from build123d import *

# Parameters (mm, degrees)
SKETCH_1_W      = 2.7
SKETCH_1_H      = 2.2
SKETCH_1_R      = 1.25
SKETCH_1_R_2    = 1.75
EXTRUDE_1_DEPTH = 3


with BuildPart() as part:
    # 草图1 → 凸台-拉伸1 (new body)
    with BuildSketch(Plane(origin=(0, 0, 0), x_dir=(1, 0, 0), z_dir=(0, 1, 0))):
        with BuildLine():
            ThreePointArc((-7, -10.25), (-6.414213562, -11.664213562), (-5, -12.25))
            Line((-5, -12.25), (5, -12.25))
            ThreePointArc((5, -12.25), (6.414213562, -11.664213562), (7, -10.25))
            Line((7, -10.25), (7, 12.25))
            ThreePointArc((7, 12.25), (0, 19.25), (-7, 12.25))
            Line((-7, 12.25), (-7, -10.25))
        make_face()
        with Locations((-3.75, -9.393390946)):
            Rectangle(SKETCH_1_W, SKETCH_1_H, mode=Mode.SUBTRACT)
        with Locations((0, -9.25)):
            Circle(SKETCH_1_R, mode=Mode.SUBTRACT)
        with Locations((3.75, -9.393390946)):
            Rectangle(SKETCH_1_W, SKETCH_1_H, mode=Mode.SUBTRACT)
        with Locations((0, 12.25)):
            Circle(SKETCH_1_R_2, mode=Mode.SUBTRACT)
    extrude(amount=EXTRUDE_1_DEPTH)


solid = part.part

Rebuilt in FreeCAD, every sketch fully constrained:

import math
import FreeCAD as App
import Part
import Sketcher
from FreeCAD import Vector


def add_polygon(sketch, points):
    """Adds a closed chain of lines whose ends are joined by coincident constraints."""
    first, n = sketch.GeometryCount, len(points)
    for a, b in zip(points, points[1:] + points[:1]):
        sketch.addGeometry(Part.LineSegment(App.Vector(*a, 0), App.Vector(*b, 0)), False)
    for i in range(n):
        sketch.addConstraint(Sketcher.Constraint("Coincident", first + i, 2, first + (i + 1) % n, 1))

doc = App.newDocument("Part")
body = doc.addObject("PartDesign::Body", "Body")

sketch1 = body.newObject("Sketcher::SketchObject", "Sketch")
sketch1.AttachmentSupport = (doc.getObject("XZ_Plane"), [""])
sketch1.MapMode = "FlatFace"
sketch1.addGeometry(Part.ArcOfCircle(Part.Circle(Vector(-5, 10.2, 0), Vector(0, 0, 1), 2), math.radians(90), math.radians(180)), False)
sketch1.addGeometry(Part.LineSegment(Vector(-5, 12.2, 0), Vector(5, 12.2, 0)), False)
sketch1.addGeometry(Part.ArcOfCircle(Part.Circle(Vector(5, 10.2, 0), Vector(0, 0, 1), 2), math.radians(0), math.radians(90)), False)
sketch1.addGeometry(Part.LineSegment(Vector(7, 10.2, 0), Vector(7, -12.2, 0)), False)
sketch1.addGeometry(Part.ArcOfCircle(Part.Circle(Vector(0, -12.2, 0), Vector(0, 0, 1), 7), math.radians(180), math.radians(360)), False)
sketch1.addGeometry(Part.LineSegment(Vector(-7, -12.2, 0), Vector(-7, 10.2, 0)), False)
add_polygon(sketch1, [(-2.4, 10.5), (-5.1, 10.5), (-5.1, 8.3), (-2.4, 8.3)])
sketch1.addGeometry(Part.Circle(Vector(0, 9.2, 0), Vector(0, 0, 1), 1.2), False)
add_polygon(sketch1, [(5.1, 10.5), (2.4, 10.5), (2.4, 8.3), (5.1, 8.3)])
sketch1.addGeometry(Part.Circle(Vector(0, -12.2, 0), Vector(0, 0, 1), 1.8), False)
sketch1.addConstraint(Sketcher.Constraint("Tangent", 0, 1, 1, 1))
sketch1.addConstraint(Sketcher.Constraint("Tangent", 1, 2, 2, 2))
sketch1.addConstraint(Sketcher.Constraint("Tangent", 2, 1, 3, 1))
sketch1.addConstraint(Sketcher.Constraint("Tangent", 3, 2, 4, 2))
sketch1.addConstraint(Sketcher.Constraint("Tangent", 4, 1, 5, 1))
sketch1.addConstraint(Sketcher.Constraint("Tangent", 5, 2, 0, 2))
sketch1.addConstraint(Sketcher.Constraint("Horizontal", 1))
sketch1.addConstraint(Sketcher.Constraint("Vertical", 3))
sketch1.addConstraint(Sketcher.Constraint("Vertical", 5))
sketch1.addConstraint(Sketcher.Constraint("Horizontal", 6))
sketch1.addConstraint(Sketcher.Constraint("Vertical", 7))
sketch1.addConstraint(Sketcher.Constraint("Horizontal", 8))
sketch1.addConstraint(Sketcher.Constraint("Vertical", 9))
sketch1.addConstraint(Sketcher.Constraint("Horizontal", 11))
sketch1.addConstraint(Sketcher.Constraint("Vertical", 12))
sketch1.addConstraint(Sketcher.Constraint("Horizontal", 13))
sketch1.addConstraint(Sketcher.Constraint("Vertical", 14))
sketch1.addConstraint(Sketcher.Constraint("Coincident", 15, 3, 4, 3))
sketch1.addConstraint(Sketcher.Constraint("Equal", 0, 2))
sketch1.addConstraint(Sketcher.Constraint("Symmetric", 9, 2, 11, 2, -2))
sketch1.addConstraint(Sketcher.Constraint("Symmetric", 7, 2, 13, 2, -2))
sketch1.addConstraint(Sketcher.Constraint("PointOnObject", 4, 3, -2))
sketch1.addConstraint(Sketcher.Constraint("PointOnObject", 10, 3, -2))
sketch1.addConstraint(Sketcher.Constraint("Radius", 0, 2.0))
sketch1.addConstraint(Sketcher.Constraint("Radius", 4, 7.0))
sketch1.addConstraint(Sketcher.Constraint("Diameter", 10, 2.5))
sketch1.addConstraint(Sketcher.Constraint("Diameter", 15, 3.5))
sketch1.addConstraint(Sketcher.Constraint("DistanceX", 6, 2, 6, 1, 2.7))
sketch1.addConstraint(Sketcher.Constraint("DistanceY", 3, 2, 3, 1, 22.5))
sketch1.addConstraint(Sketcher.Constraint("DistanceY", 7, 2, 7, 1, 2.2))
sketch1.addConstraint(Sketcher.Constraint("DistanceY", 10, 3, 0, 3, 1.0))
sketch1.addConstraint(Sketcher.Constraint("DistanceX", 6, 2, -1, 1, 5.1))
sketch1.addConstraint(Sketcher.Constraint("DistanceY", -1, 1, 0, 3, 10.25))
sketch1.addConstraint(Sketcher.Constraint("DistanceY", -1, 1, 6, 2, 10.493391))
pad1 = body.newObject("PartDesign::Pad", "Pad")
pad1.Profile = sketch1
pad1.Length = 3
pad1.Reversed = True

doc.recompute()
